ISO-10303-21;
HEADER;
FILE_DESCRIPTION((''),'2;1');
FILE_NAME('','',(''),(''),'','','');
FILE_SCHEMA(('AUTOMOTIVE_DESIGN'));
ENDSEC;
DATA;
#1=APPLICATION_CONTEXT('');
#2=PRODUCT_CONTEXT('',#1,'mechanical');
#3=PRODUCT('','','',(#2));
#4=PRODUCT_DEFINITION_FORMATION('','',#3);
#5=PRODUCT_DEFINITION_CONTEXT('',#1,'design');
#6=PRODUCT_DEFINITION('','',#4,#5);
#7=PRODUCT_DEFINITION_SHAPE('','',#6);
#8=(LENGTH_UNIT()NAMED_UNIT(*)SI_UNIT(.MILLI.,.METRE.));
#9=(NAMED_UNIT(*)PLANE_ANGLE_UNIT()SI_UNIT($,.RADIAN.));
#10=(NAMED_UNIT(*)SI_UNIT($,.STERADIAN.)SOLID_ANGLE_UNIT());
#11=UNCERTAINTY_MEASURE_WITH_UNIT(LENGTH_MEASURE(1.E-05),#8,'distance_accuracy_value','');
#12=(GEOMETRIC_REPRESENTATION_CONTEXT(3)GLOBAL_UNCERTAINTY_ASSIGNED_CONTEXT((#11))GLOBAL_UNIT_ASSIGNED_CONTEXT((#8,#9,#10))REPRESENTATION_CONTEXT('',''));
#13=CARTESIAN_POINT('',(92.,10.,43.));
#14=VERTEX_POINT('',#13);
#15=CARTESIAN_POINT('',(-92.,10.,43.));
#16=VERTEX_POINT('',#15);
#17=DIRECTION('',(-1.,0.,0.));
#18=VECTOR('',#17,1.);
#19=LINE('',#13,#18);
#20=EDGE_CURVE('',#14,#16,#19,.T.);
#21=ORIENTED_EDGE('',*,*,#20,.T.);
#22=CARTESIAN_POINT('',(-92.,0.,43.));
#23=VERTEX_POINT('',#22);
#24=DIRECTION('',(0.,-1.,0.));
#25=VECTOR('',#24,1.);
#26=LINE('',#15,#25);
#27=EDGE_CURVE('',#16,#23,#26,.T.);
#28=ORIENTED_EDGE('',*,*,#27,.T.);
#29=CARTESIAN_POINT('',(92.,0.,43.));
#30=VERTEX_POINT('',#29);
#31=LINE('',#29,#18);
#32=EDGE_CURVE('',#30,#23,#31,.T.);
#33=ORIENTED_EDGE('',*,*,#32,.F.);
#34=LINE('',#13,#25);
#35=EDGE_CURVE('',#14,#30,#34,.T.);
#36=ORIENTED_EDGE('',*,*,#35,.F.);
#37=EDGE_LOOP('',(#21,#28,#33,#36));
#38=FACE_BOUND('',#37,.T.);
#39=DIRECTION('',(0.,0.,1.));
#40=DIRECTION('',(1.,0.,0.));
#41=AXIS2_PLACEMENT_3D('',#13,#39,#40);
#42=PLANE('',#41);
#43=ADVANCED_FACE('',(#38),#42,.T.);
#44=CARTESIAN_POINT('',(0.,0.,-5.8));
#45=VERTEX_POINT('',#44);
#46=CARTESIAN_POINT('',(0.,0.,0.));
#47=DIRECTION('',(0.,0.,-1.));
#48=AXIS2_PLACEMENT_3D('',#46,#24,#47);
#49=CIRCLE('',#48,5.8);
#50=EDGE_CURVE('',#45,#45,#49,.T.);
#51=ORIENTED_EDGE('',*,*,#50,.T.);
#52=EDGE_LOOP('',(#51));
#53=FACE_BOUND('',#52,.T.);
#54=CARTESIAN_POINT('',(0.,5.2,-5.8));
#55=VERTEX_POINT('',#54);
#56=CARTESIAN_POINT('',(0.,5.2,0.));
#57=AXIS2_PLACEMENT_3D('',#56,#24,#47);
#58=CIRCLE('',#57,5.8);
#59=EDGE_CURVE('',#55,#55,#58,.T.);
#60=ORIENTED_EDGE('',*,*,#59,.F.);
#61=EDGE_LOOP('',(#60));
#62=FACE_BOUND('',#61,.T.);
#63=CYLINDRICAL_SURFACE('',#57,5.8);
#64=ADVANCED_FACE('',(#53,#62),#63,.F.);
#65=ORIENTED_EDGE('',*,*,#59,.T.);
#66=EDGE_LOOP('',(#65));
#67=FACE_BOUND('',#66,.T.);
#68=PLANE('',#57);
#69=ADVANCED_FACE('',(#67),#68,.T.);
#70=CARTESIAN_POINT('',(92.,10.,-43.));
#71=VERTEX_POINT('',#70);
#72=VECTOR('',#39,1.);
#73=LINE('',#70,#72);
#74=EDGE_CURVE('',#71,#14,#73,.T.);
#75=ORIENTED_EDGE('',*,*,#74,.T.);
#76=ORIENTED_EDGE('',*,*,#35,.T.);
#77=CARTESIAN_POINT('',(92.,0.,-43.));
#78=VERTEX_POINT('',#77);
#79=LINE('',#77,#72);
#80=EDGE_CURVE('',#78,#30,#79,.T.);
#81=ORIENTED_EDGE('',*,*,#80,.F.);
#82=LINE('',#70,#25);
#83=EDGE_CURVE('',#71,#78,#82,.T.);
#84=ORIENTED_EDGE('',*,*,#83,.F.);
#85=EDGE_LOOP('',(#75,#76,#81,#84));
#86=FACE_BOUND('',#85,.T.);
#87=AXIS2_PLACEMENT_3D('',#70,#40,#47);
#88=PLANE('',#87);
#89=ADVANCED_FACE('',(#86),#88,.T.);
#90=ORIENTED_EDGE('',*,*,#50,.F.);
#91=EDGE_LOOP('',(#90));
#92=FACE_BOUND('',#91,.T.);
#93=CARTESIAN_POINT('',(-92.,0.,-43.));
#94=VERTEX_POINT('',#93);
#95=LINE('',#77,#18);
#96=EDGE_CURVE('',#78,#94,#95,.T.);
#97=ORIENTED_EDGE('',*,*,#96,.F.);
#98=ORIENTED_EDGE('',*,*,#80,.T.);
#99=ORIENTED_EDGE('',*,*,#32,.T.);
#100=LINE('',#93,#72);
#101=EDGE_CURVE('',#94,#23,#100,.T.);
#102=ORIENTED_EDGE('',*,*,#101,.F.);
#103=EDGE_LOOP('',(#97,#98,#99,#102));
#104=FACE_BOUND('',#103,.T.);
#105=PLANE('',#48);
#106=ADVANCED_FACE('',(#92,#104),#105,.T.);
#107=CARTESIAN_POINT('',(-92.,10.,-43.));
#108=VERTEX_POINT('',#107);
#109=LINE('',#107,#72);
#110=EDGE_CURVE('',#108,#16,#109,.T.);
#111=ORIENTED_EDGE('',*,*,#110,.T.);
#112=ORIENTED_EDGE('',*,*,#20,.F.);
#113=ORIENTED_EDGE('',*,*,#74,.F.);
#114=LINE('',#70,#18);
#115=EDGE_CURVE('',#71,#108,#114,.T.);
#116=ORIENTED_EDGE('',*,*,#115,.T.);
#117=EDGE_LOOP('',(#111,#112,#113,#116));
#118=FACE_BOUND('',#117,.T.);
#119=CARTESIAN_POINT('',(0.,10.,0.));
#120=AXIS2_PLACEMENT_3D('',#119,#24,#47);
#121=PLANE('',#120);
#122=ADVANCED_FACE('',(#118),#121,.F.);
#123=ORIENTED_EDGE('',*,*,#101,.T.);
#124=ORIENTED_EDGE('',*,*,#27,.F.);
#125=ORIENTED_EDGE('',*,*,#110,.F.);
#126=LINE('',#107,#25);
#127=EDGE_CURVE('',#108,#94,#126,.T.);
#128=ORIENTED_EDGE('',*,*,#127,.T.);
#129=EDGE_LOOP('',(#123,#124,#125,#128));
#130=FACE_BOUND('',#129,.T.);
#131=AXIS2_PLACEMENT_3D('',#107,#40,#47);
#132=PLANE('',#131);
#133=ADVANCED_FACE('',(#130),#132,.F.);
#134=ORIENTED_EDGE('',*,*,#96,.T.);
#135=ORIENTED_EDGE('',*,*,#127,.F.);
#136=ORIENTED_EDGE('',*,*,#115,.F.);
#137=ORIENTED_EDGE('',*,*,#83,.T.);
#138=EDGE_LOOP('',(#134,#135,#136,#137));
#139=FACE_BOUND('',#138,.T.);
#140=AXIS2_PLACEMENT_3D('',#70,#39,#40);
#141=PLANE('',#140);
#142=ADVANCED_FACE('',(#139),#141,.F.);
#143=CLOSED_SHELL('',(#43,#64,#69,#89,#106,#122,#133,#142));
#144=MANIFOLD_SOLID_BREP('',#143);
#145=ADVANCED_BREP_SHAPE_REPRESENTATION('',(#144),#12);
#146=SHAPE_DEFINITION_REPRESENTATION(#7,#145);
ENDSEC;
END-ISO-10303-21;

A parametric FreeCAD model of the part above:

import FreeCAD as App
import Part
import Sketcher
from FreeCAD import Vector

doc = App.newDocument("Part")
body = doc.addObject("PartDesign::Body", "Body")

# Sketch on XZ plane
sketch1 = body.newObject("Sketcher::SketchObject", "Sketch")
sketch1.AttachmentSupport = (doc.getObject("XZ_Plane"), [""])
sketch1.MapMode = "FlatFace"
sketch1.addGeometry([
    Part.LineSegment(Vector(-92, -43, 0), Vector(-92, 43, 0)),
    Part.LineSegment(Vector(-92, 43, 0), Vector(92, 43, 0)),
    Part.LineSegment(Vector(92, 43, 0), Vector(92, -43, 0)),
    Part.LineSegment(Vector(92, -43, 0), Vector(-92, -43, 0)),
], False)
sketch1.addConstraint([
    Sketcher.Constraint("Coincident", 0, 2, 1, 1),
    Sketcher.Constraint("Coincident", 1, 2, 2, 1),
    Sketcher.Constraint("Coincident", 2, 2, 3, 1),
    Sketcher.Constraint("Coincident", 3, 2, 0, 1),
    Sketcher.Constraint("Vertical", 0),
    Sketcher.Constraint("Horizontal", 1),
    Sketcher.Constraint("Vertical", 2),
    Sketcher.Constraint("Horizontal", 3),
    Sketcher.Constraint("Symmetric", 0, 2, 2, 2, -1, 1),
    Sketcher.Constraint("DistanceX", 1, 1, 1, 2, 184.0),
    Sketcher.Constraint("DistanceY", 0, 1, 0, 2, 86.0),
])
pad1 = body.newObject("PartDesign::Pad", "Pad")
pad1.Profile = sketch1
pad1.Length = 10
pad1.Reversed = True

# Sketch on XZ plane
sketch2 = body.newObject("Sketcher::SketchObject", "Sketch001")
sketch2.AttachmentSupport = (doc.getObject("XZ_Plane"), [""])
sketch2.MapMode = "FlatFace"
sketch2.addGeometry(Part.Circle(Vector(0, 0, 0), Vector(0, 0, 1), 6), False)
sketch2.addConstraint([
    Sketcher.Constraint("Coincident", 0, 3, -1, 1),
    Sketcher.Constraint("Diameter", 0, 11.6),
])
pocket1 = body.newObject("PartDesign::Pocket", "Pocket")
pocket1.Profile = sketch2
pocket1.Length = 5.2

doc.recompute()
